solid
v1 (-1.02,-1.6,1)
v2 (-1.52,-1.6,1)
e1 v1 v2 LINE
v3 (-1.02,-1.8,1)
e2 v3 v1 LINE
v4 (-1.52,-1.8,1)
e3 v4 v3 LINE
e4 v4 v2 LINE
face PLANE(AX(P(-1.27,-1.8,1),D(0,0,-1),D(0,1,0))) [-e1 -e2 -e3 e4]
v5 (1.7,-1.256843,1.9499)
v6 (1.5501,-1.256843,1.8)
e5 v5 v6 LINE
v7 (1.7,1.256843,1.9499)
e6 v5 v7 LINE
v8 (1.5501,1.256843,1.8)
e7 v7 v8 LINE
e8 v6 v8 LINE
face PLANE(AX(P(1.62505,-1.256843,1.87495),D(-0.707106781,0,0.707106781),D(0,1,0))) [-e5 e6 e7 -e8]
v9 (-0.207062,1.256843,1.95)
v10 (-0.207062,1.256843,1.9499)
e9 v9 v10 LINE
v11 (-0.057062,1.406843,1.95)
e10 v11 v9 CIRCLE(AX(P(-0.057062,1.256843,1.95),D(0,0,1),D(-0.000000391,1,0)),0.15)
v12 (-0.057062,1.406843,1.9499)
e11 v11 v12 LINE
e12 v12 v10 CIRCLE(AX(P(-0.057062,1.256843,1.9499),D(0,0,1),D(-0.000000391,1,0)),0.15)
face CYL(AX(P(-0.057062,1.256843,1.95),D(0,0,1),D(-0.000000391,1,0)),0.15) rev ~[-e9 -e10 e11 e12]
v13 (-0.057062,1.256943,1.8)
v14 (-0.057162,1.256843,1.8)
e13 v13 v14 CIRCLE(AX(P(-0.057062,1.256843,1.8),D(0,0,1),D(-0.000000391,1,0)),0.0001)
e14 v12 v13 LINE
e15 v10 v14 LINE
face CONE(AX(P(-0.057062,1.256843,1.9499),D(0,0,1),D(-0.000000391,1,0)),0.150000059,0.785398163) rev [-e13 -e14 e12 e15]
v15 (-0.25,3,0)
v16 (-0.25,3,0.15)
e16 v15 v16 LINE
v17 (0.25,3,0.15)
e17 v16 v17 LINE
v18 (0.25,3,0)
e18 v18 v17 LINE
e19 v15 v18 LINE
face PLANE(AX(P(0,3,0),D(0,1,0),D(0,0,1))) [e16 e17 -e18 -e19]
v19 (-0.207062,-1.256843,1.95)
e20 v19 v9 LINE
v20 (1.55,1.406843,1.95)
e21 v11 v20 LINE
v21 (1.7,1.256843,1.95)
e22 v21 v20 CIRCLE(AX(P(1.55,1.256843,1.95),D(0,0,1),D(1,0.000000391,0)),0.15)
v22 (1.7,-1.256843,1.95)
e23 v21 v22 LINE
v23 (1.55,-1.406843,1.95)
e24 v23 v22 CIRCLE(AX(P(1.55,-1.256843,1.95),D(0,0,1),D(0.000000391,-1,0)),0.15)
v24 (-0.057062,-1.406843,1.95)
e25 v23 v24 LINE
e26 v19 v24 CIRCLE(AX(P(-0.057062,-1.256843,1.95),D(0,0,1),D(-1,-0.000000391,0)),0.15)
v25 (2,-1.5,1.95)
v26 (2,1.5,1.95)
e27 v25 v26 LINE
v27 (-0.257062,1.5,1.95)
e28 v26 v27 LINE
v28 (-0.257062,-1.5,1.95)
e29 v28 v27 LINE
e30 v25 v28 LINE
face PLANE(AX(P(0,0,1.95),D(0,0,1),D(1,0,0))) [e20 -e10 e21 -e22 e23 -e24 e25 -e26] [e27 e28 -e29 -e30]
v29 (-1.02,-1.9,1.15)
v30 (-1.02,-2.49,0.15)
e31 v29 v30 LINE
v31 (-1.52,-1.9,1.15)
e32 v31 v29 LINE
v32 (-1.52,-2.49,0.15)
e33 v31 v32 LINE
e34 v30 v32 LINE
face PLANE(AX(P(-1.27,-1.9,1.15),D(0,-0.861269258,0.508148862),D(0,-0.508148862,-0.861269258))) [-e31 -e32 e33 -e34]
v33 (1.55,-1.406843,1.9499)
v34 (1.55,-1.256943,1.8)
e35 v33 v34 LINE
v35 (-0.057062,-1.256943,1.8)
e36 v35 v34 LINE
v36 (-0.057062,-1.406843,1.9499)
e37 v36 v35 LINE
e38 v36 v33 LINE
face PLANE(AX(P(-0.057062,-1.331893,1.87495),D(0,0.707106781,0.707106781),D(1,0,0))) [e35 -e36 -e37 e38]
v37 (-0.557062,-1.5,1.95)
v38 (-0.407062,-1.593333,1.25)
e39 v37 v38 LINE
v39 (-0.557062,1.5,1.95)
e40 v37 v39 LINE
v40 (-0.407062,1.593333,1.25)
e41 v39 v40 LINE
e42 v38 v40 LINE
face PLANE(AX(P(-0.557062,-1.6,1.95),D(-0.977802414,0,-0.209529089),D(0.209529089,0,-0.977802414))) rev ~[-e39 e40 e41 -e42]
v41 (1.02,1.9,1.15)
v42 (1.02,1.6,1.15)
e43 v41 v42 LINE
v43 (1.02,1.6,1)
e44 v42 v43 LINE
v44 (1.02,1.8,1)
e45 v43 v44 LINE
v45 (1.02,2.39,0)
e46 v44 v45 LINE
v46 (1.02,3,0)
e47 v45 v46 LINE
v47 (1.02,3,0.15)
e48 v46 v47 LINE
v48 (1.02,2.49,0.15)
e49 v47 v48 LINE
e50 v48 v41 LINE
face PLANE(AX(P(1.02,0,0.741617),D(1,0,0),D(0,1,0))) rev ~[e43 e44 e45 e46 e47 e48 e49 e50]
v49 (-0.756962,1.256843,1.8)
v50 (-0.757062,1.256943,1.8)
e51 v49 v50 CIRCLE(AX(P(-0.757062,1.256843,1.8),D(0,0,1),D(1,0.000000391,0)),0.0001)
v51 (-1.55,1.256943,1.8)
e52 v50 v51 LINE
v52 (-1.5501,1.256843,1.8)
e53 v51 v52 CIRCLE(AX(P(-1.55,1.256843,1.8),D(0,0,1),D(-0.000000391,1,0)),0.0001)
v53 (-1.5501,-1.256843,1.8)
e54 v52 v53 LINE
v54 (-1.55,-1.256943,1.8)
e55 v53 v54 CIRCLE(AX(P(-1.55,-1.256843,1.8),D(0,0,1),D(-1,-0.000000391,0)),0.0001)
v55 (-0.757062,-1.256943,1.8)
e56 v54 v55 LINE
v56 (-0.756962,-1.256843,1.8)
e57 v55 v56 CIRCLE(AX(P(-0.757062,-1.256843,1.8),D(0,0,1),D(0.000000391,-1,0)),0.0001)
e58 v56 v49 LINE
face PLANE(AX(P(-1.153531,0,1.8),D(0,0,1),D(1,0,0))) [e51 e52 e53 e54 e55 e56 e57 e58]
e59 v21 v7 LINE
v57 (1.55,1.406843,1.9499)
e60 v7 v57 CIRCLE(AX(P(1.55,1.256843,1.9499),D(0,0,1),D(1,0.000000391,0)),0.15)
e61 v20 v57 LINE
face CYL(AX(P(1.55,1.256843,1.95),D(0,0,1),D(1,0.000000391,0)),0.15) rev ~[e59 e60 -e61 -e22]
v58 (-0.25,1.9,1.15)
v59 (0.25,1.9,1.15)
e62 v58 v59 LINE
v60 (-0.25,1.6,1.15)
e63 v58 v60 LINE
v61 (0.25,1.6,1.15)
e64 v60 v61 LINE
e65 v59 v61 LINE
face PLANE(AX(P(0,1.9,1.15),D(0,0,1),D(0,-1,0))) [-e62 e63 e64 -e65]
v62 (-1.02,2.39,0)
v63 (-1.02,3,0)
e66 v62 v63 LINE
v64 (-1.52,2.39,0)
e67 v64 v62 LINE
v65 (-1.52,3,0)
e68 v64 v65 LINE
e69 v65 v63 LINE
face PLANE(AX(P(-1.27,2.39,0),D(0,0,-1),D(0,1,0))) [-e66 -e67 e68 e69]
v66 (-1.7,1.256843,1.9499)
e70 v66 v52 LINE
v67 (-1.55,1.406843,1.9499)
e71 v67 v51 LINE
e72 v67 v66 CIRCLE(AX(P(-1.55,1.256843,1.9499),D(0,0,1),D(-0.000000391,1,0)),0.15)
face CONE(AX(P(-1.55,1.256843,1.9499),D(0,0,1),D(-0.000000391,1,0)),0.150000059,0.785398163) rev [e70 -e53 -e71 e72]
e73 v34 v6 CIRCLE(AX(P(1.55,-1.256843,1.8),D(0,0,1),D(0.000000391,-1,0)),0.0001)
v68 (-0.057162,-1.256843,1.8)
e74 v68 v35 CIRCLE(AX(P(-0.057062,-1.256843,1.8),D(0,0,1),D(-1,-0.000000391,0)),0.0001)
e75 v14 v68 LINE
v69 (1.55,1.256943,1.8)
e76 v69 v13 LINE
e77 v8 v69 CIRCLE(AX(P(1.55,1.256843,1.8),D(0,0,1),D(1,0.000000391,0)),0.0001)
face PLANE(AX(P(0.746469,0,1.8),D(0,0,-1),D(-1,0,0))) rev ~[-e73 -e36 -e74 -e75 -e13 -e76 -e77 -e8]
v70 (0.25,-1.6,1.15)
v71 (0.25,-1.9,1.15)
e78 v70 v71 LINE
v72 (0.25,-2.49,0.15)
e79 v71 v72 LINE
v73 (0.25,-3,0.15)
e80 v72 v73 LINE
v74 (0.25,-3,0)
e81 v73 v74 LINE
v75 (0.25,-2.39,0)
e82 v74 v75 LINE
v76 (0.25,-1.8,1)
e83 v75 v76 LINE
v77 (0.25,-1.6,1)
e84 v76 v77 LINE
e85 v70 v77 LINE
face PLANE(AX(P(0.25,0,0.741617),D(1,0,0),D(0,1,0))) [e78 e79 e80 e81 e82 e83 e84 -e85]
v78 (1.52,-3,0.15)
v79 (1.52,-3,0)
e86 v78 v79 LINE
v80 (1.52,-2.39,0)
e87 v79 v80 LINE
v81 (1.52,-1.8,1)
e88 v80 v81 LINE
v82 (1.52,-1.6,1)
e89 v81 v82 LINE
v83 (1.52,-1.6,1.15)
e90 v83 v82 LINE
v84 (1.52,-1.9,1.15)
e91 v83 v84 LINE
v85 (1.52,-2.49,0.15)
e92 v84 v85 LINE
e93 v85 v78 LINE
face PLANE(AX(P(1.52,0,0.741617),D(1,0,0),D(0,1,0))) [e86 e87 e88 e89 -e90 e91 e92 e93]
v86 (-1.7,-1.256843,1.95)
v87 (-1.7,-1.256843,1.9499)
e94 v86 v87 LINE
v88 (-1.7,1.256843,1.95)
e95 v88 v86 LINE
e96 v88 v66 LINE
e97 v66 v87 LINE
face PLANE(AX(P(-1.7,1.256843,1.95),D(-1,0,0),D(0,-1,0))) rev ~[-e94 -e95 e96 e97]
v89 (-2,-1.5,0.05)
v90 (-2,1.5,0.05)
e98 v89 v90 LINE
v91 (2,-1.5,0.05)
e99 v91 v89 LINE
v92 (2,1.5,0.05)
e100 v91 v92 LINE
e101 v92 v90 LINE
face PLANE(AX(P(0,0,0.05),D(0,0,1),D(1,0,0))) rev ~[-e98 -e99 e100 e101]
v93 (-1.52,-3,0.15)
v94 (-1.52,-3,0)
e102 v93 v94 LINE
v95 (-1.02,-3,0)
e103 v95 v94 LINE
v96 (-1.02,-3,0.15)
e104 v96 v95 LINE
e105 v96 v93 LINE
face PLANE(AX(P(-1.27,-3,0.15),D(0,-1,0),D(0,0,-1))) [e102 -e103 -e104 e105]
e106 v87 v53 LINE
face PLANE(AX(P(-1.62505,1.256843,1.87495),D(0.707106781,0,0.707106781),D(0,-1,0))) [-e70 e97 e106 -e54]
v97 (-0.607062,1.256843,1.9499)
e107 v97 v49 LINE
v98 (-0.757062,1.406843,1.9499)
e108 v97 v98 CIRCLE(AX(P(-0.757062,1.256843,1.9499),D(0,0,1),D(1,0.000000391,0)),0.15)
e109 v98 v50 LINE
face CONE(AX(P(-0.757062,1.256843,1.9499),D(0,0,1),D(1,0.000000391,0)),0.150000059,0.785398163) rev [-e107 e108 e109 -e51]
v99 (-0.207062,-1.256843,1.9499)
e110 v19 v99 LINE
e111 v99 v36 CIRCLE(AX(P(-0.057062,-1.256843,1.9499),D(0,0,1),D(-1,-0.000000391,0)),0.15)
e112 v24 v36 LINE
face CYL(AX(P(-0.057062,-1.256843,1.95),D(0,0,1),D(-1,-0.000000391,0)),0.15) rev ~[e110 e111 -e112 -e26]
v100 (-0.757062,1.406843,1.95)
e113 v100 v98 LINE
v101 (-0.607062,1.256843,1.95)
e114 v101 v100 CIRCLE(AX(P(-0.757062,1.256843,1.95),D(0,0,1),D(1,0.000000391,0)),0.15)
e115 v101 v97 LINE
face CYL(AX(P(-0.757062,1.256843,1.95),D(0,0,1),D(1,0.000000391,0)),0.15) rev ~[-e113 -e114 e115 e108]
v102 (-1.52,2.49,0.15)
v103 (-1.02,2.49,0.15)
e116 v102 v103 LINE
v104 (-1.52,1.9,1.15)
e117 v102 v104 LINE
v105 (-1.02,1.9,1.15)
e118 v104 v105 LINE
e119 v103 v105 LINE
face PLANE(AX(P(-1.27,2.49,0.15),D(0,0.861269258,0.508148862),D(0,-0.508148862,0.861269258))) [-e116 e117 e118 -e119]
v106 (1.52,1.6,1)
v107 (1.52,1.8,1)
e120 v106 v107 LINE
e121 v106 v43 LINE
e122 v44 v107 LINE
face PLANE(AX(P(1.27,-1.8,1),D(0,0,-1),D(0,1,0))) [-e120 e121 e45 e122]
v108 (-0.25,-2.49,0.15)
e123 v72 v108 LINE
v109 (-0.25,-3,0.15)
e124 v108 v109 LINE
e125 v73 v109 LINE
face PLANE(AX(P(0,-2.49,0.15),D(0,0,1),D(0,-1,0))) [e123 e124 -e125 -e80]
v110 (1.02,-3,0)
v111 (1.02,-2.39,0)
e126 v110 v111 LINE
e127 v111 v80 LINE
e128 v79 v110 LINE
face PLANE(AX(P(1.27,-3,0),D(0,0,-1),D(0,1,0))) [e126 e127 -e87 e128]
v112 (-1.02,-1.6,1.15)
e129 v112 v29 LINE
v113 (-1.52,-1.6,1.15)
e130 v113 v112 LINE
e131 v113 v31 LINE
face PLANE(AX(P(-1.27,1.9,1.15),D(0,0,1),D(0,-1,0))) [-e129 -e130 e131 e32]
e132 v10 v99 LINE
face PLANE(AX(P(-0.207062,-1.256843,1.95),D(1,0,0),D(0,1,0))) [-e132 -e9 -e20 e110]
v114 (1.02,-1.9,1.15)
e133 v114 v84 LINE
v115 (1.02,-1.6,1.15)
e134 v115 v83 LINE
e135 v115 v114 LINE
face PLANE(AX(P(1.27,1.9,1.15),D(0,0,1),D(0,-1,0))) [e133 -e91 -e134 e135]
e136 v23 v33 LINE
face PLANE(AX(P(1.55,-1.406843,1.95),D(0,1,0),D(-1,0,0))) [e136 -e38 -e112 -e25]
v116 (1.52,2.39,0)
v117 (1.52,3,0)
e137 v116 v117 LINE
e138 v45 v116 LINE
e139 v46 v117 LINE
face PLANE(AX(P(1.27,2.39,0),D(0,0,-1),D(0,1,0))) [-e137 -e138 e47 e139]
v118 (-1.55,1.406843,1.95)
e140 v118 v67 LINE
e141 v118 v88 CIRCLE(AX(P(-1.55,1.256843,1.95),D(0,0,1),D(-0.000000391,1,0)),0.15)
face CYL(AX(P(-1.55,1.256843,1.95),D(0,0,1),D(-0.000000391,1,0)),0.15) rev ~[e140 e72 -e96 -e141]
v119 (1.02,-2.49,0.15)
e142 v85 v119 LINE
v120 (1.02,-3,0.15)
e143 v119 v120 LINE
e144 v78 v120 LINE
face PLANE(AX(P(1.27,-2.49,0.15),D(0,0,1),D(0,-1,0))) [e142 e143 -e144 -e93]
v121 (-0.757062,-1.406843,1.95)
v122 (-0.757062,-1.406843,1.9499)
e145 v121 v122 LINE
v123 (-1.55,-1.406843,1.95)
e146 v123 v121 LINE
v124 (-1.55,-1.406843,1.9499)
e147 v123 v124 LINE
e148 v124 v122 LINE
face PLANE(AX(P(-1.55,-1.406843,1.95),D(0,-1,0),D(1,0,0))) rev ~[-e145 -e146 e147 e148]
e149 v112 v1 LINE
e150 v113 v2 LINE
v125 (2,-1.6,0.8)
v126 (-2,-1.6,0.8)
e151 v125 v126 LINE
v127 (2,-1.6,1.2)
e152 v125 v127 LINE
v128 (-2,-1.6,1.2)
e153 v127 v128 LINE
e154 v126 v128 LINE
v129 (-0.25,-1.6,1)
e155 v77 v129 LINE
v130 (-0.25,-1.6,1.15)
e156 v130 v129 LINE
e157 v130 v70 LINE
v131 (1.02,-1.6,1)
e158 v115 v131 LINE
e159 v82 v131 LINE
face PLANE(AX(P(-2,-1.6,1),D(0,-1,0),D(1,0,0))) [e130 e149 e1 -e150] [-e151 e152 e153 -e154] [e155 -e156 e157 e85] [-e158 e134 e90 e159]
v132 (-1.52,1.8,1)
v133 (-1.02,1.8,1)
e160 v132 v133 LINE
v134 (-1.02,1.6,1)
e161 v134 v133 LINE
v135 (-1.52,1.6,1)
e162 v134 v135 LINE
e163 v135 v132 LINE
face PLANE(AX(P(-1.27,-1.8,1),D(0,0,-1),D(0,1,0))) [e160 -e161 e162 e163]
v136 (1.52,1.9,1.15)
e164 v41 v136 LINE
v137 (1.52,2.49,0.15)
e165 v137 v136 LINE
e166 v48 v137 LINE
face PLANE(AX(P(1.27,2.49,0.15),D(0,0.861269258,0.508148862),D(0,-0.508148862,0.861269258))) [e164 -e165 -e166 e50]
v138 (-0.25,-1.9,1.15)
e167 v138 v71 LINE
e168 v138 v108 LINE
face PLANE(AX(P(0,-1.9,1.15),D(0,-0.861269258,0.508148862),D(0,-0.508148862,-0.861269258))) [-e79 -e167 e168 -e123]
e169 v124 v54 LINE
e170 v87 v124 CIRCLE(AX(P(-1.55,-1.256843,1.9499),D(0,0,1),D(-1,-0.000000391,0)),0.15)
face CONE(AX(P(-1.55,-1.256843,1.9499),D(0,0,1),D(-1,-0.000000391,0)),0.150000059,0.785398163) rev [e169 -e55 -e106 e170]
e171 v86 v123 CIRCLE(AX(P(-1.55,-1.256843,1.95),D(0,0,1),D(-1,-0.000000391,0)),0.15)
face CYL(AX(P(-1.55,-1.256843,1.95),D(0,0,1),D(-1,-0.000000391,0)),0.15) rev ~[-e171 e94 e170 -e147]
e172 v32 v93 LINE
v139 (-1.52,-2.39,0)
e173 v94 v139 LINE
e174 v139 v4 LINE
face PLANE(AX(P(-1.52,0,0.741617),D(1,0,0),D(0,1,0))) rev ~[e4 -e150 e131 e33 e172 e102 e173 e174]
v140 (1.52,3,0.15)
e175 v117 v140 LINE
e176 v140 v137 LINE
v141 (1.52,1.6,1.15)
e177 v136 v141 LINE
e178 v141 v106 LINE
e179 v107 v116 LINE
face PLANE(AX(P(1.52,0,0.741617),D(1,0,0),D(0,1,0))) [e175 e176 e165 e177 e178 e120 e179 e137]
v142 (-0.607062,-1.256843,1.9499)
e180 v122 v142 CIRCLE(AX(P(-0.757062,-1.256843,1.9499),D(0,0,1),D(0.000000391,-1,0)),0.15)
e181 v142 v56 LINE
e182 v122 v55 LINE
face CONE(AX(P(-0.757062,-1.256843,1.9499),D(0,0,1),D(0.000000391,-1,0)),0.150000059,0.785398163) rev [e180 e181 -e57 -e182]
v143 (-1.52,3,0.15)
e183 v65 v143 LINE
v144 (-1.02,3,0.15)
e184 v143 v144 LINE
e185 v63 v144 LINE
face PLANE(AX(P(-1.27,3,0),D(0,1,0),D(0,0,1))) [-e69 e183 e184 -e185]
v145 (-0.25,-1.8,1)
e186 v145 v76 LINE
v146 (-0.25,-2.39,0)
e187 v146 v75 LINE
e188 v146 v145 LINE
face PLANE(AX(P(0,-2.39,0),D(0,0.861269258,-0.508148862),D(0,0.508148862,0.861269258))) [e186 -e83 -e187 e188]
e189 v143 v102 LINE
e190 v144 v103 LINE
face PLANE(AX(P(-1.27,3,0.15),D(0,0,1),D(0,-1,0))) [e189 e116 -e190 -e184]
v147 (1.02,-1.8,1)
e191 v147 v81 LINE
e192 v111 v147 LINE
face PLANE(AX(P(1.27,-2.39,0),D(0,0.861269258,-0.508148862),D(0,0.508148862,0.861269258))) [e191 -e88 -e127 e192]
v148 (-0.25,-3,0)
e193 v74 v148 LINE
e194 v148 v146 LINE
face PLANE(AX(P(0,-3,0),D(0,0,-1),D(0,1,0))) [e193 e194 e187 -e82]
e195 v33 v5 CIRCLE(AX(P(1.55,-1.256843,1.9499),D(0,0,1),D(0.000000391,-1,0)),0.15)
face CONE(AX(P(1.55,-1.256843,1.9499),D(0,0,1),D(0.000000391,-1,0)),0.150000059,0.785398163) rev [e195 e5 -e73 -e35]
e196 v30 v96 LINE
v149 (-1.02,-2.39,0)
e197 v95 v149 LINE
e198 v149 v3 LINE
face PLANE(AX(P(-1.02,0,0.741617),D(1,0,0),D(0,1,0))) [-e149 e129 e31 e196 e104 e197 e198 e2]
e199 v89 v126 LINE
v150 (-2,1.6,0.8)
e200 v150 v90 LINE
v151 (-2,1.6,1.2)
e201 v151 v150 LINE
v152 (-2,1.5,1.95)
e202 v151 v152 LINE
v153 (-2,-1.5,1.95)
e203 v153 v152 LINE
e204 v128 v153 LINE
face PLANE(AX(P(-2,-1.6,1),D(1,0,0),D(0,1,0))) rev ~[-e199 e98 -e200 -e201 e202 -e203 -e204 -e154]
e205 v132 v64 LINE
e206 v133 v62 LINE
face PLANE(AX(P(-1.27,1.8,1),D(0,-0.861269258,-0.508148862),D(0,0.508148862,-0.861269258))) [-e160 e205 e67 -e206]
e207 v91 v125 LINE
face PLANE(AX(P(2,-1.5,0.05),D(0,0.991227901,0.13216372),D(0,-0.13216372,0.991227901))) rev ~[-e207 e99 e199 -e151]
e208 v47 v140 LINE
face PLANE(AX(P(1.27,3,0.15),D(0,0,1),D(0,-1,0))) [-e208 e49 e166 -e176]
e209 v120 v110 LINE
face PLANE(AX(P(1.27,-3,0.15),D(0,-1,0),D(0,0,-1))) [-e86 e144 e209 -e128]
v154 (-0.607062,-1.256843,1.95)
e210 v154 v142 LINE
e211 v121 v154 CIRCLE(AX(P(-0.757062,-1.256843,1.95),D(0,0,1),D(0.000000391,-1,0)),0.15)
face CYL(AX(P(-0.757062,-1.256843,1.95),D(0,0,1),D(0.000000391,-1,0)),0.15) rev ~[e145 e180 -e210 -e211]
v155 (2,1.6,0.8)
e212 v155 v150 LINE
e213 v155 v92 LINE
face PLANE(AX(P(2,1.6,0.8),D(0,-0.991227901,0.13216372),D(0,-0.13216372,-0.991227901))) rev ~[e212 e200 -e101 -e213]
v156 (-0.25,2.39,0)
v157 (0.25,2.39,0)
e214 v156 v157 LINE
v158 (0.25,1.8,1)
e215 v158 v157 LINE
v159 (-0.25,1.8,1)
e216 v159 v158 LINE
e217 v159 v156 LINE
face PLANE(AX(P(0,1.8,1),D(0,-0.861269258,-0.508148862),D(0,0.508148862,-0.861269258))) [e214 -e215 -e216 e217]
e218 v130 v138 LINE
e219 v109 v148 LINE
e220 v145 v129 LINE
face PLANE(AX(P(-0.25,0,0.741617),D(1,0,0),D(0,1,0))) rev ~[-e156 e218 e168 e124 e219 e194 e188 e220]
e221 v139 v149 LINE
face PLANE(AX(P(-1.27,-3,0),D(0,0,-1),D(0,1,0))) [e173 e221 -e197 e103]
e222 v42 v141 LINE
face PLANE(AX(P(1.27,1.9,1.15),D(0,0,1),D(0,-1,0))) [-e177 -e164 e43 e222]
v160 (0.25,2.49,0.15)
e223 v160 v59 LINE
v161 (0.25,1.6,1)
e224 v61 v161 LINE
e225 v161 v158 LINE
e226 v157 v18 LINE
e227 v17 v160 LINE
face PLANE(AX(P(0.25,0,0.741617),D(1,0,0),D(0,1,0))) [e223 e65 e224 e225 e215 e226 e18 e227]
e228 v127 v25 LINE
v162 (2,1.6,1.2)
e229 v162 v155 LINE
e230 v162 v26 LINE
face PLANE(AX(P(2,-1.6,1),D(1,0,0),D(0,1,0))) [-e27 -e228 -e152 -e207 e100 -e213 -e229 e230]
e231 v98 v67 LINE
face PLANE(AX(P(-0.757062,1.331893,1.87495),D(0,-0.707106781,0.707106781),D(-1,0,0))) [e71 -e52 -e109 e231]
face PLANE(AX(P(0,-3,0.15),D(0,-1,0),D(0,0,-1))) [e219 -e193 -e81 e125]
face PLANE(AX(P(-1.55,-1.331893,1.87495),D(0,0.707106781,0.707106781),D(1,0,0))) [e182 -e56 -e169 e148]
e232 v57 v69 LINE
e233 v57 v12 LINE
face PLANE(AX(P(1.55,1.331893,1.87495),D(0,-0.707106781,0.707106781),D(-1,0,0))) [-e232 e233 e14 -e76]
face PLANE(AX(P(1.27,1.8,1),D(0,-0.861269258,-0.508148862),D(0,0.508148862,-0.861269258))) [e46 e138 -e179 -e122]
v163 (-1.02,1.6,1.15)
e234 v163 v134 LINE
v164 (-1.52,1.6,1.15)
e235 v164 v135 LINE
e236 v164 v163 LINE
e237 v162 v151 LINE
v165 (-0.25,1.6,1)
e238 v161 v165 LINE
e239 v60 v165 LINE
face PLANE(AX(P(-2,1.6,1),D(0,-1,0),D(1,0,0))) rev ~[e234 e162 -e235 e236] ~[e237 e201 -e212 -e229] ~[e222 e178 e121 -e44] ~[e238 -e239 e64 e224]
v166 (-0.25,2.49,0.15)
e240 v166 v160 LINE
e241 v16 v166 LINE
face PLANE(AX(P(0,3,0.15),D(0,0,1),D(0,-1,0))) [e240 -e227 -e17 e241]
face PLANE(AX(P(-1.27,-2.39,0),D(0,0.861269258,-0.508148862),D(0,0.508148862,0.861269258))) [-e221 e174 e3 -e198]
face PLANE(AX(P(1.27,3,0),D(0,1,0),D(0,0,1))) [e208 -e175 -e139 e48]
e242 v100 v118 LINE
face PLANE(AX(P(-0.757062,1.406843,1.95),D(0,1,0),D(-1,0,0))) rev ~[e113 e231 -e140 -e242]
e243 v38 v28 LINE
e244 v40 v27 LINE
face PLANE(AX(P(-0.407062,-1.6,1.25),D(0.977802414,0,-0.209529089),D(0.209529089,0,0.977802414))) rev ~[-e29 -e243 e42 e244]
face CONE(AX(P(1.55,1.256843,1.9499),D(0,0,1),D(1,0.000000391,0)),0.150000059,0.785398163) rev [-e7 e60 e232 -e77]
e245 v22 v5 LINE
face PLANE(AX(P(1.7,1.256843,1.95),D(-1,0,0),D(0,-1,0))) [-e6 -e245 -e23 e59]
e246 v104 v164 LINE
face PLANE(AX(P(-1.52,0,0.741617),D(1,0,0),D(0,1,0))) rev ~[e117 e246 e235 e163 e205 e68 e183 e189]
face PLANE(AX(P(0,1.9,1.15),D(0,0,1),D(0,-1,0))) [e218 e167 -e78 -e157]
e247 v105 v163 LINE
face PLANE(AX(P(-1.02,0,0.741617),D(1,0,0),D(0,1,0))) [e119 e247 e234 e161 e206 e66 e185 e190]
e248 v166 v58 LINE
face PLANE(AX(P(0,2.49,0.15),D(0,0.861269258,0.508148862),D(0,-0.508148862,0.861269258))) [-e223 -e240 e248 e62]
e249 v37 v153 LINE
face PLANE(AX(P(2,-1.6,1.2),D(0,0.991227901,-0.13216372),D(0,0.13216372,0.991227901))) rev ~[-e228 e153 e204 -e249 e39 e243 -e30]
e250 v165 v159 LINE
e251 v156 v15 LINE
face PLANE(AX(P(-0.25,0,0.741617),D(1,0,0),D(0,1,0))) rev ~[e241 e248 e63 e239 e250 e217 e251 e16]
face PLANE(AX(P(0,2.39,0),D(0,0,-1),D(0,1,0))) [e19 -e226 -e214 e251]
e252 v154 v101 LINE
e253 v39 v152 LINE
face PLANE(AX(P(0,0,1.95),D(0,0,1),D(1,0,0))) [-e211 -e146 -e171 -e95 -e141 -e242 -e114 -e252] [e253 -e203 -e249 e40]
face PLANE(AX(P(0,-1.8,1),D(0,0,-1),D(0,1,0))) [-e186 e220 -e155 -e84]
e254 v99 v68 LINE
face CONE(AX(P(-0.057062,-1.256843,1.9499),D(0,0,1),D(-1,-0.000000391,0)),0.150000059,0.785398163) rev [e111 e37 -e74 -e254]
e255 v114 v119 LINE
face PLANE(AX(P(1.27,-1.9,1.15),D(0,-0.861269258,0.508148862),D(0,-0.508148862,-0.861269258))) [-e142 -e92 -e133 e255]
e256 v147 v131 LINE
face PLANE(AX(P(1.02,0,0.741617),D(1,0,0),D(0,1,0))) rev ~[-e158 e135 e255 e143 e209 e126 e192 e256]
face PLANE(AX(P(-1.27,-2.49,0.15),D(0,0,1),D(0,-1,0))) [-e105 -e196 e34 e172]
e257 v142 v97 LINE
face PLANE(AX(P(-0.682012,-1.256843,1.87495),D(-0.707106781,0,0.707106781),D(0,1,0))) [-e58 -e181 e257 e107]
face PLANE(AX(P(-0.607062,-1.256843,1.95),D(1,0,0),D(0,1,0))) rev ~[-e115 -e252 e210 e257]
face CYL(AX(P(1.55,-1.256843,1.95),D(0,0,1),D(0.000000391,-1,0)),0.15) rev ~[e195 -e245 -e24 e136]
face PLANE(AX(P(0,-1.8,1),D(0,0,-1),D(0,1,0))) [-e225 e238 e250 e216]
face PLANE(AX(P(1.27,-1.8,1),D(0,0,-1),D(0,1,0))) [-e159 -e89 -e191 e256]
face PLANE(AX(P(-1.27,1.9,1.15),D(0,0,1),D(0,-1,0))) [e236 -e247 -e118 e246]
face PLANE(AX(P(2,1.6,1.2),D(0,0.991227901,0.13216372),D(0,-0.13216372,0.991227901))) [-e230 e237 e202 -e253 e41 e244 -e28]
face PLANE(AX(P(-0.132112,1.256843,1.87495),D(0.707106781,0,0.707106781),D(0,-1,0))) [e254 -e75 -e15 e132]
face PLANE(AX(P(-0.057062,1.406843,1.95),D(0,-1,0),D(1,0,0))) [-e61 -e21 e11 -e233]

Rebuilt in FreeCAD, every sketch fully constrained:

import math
import FreeCAD as App
import Part
import Sketcher
from FreeCAD import Vector
Q = App.Units.Quantity


def edges_at(feature, points):
    """Names of the edges that pass closest to the given points."""
    edges = feature.Shape.Edges
    near = lambda p: min(range(len(edges)), key=lambda i: edges[i].distToShape(Part.Vertex(*p))[0])
    return sorted({f"Edge{near(p) + 1}" for p in points})

doc = App.newDocument("Part")
params = doc.addObject("Spreadsheet::Sheet", "Params")
for row, (alias, value) in enumerate([
    ("sketch1_width", "3.6 mm"),
    ("sketch1_width2", "3.8 mm"),
    ("sketch1_width3", "0.61 mm"),
    ("sketch1_height", "0.15 mm"),
    ("pad1_length", "0.5 mm"),
    ("sketch2_width", "3.6 mm"),
    ("sketch2_width2", "3.8 mm"),
    ("sketch2_width3", "0.61 mm"),
    ("sketch2_height", "0.15 mm"),
    ("pad2_length", "0.5 mm"),
    ("sketch3_width", "4 mm"),
    ("sketch3_height", "3.2 mm"),
    ("pad3_length", "1.9 mm"),
    ("sketch4_width", "0.3 mm"),
    ("sketch5_radius", "0.15 mm"),
    ("pocket2_length", "0.15 mm"),
    ("sketch6_width", "0.1 mm"),
    ("sketch6_height", "0.75 mm"),
    ("pocket3_length", "20 mm"),
    ("chamfer_size", "0.1499 mm"),
    ("sketch7_width", "3.6 mm"),
    ("sketch7_width2", "3.8 mm"),
    ("sketch7_width3", "0.61 mm"),
    ("sketch7_height", "0.15 mm"),
    ("pad4_length", "0.5 mm"),
], start=1):
    params.set(f"A{row}", alias)
    params.set(f"B{row}", "=" + value)
    params.setAlias(f"B{row}", alias)

body = doc.addObject("PartDesign::Body", "Body")

# Sketch on YZ plane
sketch1 = body.newObject("Sketcher::SketchObject", "Sketch")
sketch1.AttachmentSupport = (doc.getObject("YZ_Plane"), [""])
sketch1.MapMode = "FlatFace"
sketch1.addGeometry([
    Part.LineSegment(Vector(-3, 0, 0), Vector(-2.39, 0, 0)),  # 0
    Part.LineSegment(Vector(-2.39, 0, 0), Vector(-1.8, 1, 0)),  # 1
    Part.LineSegment(Vector(-1.8, 1, 0), Vector(1.8, 1, 0)),  # 2
    Part.LineSegment(Vector(1.8, 1, 0), Vector(2.39, 0, 0)),  # 3
    Part.LineSegment(Vector(2.39, 0, 0), Vector(3, 0, 0)),  # 4
    Part.LineSegment(Vector(3, 0, 0), Vector(3, 0.15, 0)),  # 5
    Part.LineSegment(Vector(3, 0.15, 0), Vector(2.49, 0.15, 0)),  # 6
    Part.LineSegment(Vector(2.49, 0.15, 0), Vector(1.9, 1.15, 0)),  # 7
    Part.LineSegment(Vector(1.9, 1.15, 0), Vector(-1.9, 1.15, 0)),  # 8
    Part.LineSegment(Vector(-1.9, 1.15, 0), Vector(-2.49, 0.15, 0)),  # 9
    Part.LineSegment(Vector(-2.49, 0.15, 0), Vector(-3, 0.15, 0)),  # 10
    Part.LineSegment(Vector(-3, 0.15, 0), Vector(-3, 0, 0)),  # 11
], False)
sketch1.addConstraint([
    Sketcher.Constraint("Coincident", 0, 2, 1, 1),
    Sketcher.Constraint("Coincident", 1, 2, 2, 1),
    Sketcher.Constraint("Coincident", 2, 2, 3, 1),
    Sketcher.Constraint("Coincident", 3, 2, 4, 1),
    Sketcher.Constraint("Coincident", 4, 2, 5, 1),
    Sketcher.Constraint("Coincident", 5, 2, 6, 1),
    Sketcher.Constraint("Coincident", 6, 2, 7, 1),
    Sketcher.Constraint("Coincident", 7, 2, 8, 1),
    Sketcher.Constraint("Coincident", 8, 2, 9, 1),
    Sketcher.Constraint("Coincident", 9, 2, 10, 1),
    Sketcher.Constraint("Coincident", 10, 2, 11, 1),
    Sketcher.Constraint("Coincident", 11, 2, 0, 1),
    Sketcher.Constraint("Horizontal", 0),
    Sketcher.Constraint("Horizontal", 2),
    Sketcher.Constraint("Horizontal", 4),
    Sketcher.Constraint("Vertical", 5),
    Sketcher.Constraint("Horizontal", 6),
    Sketcher.Constraint("Horizontal", 8),
    Sketcher.Constraint("Horizontal", 10),
    Sketcher.Constraint("Vertical", 11),
    Sketcher.Constraint("Symmetric", 0, 2, 3, 2, -1, 1),
    Sketcher.Constraint("Symmetric", 6, 2, 9, 2, -2),
    Sketcher.Constraint("Symmetric", 4, 2, 11, 2, -2),
    Sketcher.Constraint("Parallel", 3, 7),
    Sketcher.Constraint("Parallel", 1, 9),
    Sketcher.Constraint("Equal", 1, 3),
    Sketcher.Constraint("Equal", 3, 7),
    Sketcher.Constraint("DistanceX", 2, 1, 2, 2, Q("3.6 mm")),
    Sketcher.Constraint("DistanceX", 8, 2, 8, 1, Q("3.8 mm")),
    Sketcher.Constraint("DistanceY", -1, 1, 1, 2, Q("1 mm")),
    Sketcher.Constraint("DistanceX", -1, 1, 4, 2, Q("3 mm")),
    Sketcher.Constraint("DistanceX", 0, 1, 0, 2, Q("0.61 mm")),
    Sketcher.Constraint("DistanceY", 5, 1, 5, 2, Q("0.15 mm")),
])
sketch1.setExpression("Constraints[27]", "Params.sketch1_width")
sketch1.setExpression("Constraints[28]", "Params.sketch1_width2")
sketch1.setExpression("Constraints[31]", "Params.sketch1_width3")
sketch1.setExpression("Constraints[32]", "Params.sketch1_height")
pad1 = body.newObject("PartDesign::Pad", "Pad")
pad1.Profile = sketch1
pad1.setExpression("Length", "Params.pad1_length")
pad1.Midplane = True
body2 = doc.addObject("PartDesign::Body", "Body001")

# Sketch on YZ plane
sketch2 = body2.newObject("Sketcher::SketchObject", "Sketch001")
sketch2.AttachmentSupport = (doc.getObject("YZ_Plane001"), [""])
sketch2.MapMode = "FlatFace"
sketch2.AttachmentOffset = App.Placement(Vector(0, 0, 1.27), App.Rotation())
sketch2.addGeometry([
    Part.LineSegment(Vector(-3, 0, 0), Vector(-2.39, 0, 0)),  # 0
    Part.LineSegment(Vector(-2.39, 0, 0), Vector(-1.8, 1, 0)),  # 1
    Part.LineSegment(Vector(-1.8, 1, 0), Vector(1.8, 1, 0)),  # 2
    Part.LineSegment(Vector(1.8, 1, 0), Vector(2.39, 0, 0)),  # 3
    Part.LineSegment(Vector(2.39, 0, 0), Vector(3, 0, 0)),  # 4
    Part.LineSegment(Vector(3, 0, 0), Vector(3, 0.15, 0)),  # 5
    Part.LineSegment(Vector(3, 0.15, 0), Vector(2.49, 0.15, 0)),  # 6
    Part.LineSegment(Vector(2.49, 0.15, 0), Vector(1.9, 1.15, 0)),  # 7
    Part.LineSegment(Vector(1.9, 1.15, 0), Vector(-1.9, 1.15, 0)),  # 8
    Part.LineSegment(Vector(-1.9, 1.15, 0), Vector(-2.49, 0.15, 0)),  # 9
    Part.LineSegment(Vector(-2.49, 0.15, 0), Vector(-3, 0.15, 0)),  # 10
    Part.LineSegment(Vector(-3, 0.15, 0), Vector(-3, 0, 0)),  # 11
], False)
sketch2.addConstraint([
    Sketcher.Constraint("Coincident", 0, 2, 1, 1),
    Sketcher.Constraint("Coincident", 1, 2, 2, 1),
    Sketcher.Constraint("Coincident", 2, 2, 3, 1),
    Sketcher.Constraint("Coincident", 3, 2, 4, 1),
    Sketcher.Constraint("Coincident", 4, 2, 5, 1),
    Sketcher.Constraint("Coincident", 5, 2, 6, 1),
    Sketcher.Constraint("Coincident", 6, 2, 7, 1),
    Sketcher.Constraint("Coincident", 7, 2, 8, 1),
    Sketcher.Constraint("Coincident", 8, 2, 9, 1),
    Sketcher.Constraint("Coincident", 9, 2, 10, 1),
    Sketcher.Constraint("Coincident", 10, 2, 11, 1),
    Sketcher.Constraint("Coincident", 11, 2, 0, 1),
    Sketcher.Constraint("Horizontal", 0),
    Sketcher.Constraint("Horizontal", 2),
    Sketcher.Constraint("Horizontal", 4),
    Sketcher.Constraint("Vertical", 5),
    Sketcher.Constraint("Horizontal", 6),
    Sketcher.Constraint("Horizontal", 8),
    Sketcher.Constraint("Horizontal", 10),
    Sketcher.Constraint("Vertical", 11),
    Sketcher.Constraint("Symmetric", 0, 2, 3, 2, -1, 1),
    Sketcher.Constraint("Symmetric", 6, 2, 9, 2, -2),
    Sketcher.Constraint("Symmetric", 4, 2, 11, 2, -2),
    Sketcher.Constraint("Parallel", 3, 7),
    Sketcher.Constraint("Parallel", 1, 9),
    Sketcher.Constraint("Equal", 1, 3),
    Sketcher.Constraint("Equal", 3, 7),
    Sketcher.Constraint("DistanceX", 2, 1, 2, 2, Q("3.6 mm")),
    Sketcher.Constraint("DistanceX", 8, 2, 8, 1, Q("3.8 mm")),
    Sketcher.Constraint("DistanceY", -1, 1, 1, 2, Q("1 mm")),
    Sketcher.Constraint("DistanceX", -1, 1, 4, 2, Q("3 mm")),
    Sketcher.Constraint("DistanceX", 0, 1, 0, 2, Q("0.61 mm")),
    Sketcher.Constraint("DistanceY", 5, 1, 5, 2, Q("0.15 mm")),
])
sketch2.setExpression("Constraints[27]", "Params.sketch2_width")
sketch2.setExpression("Constraints[28]", "Params.sketch2_width2")
sketch2.setExpression("Constraints[31]", "Params.sketch2_width3")
sketch2.setExpression("Constraints[32]", "Params.sketch2_height")
pad2 = body2.newObject("PartDesign::Pad", "Pad001")
pad2.Profile = sketch2
pad2.setExpression("Length", "Params.pad2_length")
pad2.Midplane = True
body3 = doc.addObject("PartDesign::Body", "Body002")

# Sketch on XY plane
sketch3 = body3.newObject("Sketcher::SketchObject", "Sketch002")
sketch3.AttachmentSupport = (doc.getObject("XY_Plane002"), [""])
sketch3.MapMode = "FlatFace"
sketch3.AttachmentOffset = App.Placement(Vector(0, 0, 1), App.Rotation())
sketch3.addGeometry([
    Part.LineSegment(Vector(-2, 1.6, 0), Vector(-2, -1.6, 0)),
    Part.LineSegment(Vector(-2, -1.6, 0), Vector(2, -1.6, 0)),
    Part.LineSegment(Vector(2, -1.6, 0), Vector(2, 1.6, 0)),
    Part.LineSegment(Vector(2, 1.6, 0), Vector(-2, 1.6, 0)),
], False)
sketch3.addConstraint([
    Sketcher.Constraint("Coincident", 0, 2, 1, 1),
    Sketcher.Constraint("Coincident", 1, 2, 2, 1),
    Sketcher.Constraint("Coincident", 2, 2, 3, 1),
    Sketcher.Constraint("Coincident", 3, 2, 0, 1),
    Sketcher.Constraint("Vertical", 0),
    Sketcher.Constraint("Horizontal", 1),
    Sketcher.Constraint("Vertical", 2),
    Sketcher.Constraint("Horizontal", 3),
    Sketcher.Constraint("Symmetric", 0, 2, 2, 2, -1, 1),
    Sketcher.Constraint("DistanceX", 1, 1, 1, 2, Q("4 mm")),
    Sketcher.Constraint("DistanceY", 0, 2, 0, 1, Q("3.2 mm")),
])
sketch3.setExpression("Constraints[9]", "Params.sketch3_width")
sketch3.setExpression("Constraints[10]", "Params.sketch3_height")
pad3 = body3.newObject("PartDesign::Pad", "Pad002")
pad3.Profile = sketch3
pad3.setExpression("Length", "Params.pad3_length")
pad3.Midplane = True

# Sketch on XZ plane
sketch4 = body3.newObject("Sketcher::SketchObject", "Sketch003")
sketch4.AttachmentSupport = (doc.getObject("XZ_Plane002"), [""])
sketch4.MapMode = "FlatFace"
sketch4.AttachmentOffset = App.Placement(Vector(0, 0, 1.6), App.Rotation())
sketch4.addGeometry([
    Part.LineSegment(Vector(-0.56, 1.95, 0), Vector(-0.41, 1.25, 0)),
    Part.LineSegment(Vector(-0.41, 1.25, 0), Vector(-0.26, 1.95, 0)),
    Part.LineSegment(Vector(-0.26, 1.95, 0), Vector(-0.56, 1.95, 0)),
], False)
sketch4.addConstraint([
    Sketcher.Constraint("Coincident", 0, 2, 1, 1),
    Sketcher.Constraint("Coincident", 1, 2, 2, 1),
    Sketcher.Constraint("Coincident", 2, 2, 0, 1),
    Sketcher.Constraint("Horizontal", 2),
    Sketcher.Constraint("Equal", 0, 1),
    Sketcher.Constraint("DistanceX", 2, 2, 2, 1, Q("0.3 mm")),
    Sketcher.Constraint("DistanceY", 0, 2, 1, 2, Q("0.7 mm")),
    Sketcher.Constraint("DistanceY", -1, 1, 0, 2, Q("1.25 mm")),
    Sketcher.Constraint("DistanceX", 2, 2, -1, 1, Q("0.557062 mm")),
])
sketch4.setExpression("Constraints[5]", "Params.sketch4_width")
pocket1 = body3.newObject("PartDesign::Pocket", "Pocket")
pocket1.Profile = sketch4
pocket1.Type = "ThroughAll"

# Sketch on XY plane
sketch5 = body3.newObject("Sketcher::SketchObject", "Sketch004")
sketch5.AttachmentSupport = (doc.getObject("XY_Plane002"), [""])
sketch5.MapMode = "FlatFace"
sketch5.AttachmentOffset = App.Placement(Vector(0, 0, 1.95), App.Rotation())
sketch5.addGeometry([
    Part.LineSegment(Vector(-0.76, 1.41, 0), Vector(-1.55, 1.41, 0)),  # 0
    Part.ArcOfCircle(Part.Circle(Vector(-1.55, 1.26, 0), Vector(0, 0, 1), 0.15), math.radians(90), math.radians(180)),  # 1
    Part.LineSegment(Vector(-1.7, 1.26, 0), Vector(-1.7, -1.26, 0)),  # 2
    Part.ArcOfCircle(Part.Circle(Vector(-1.55, -1.26, 0), Vector(0, 0, 1), 0.15), math.radians(-180), math.radians(-90)),  # 3
    Part.LineSegment(Vector(-1.55, -1.41, 0), Vector(-0.76, -1.41, 0)),  # 4
    Part.ArcOfCircle(Part.Circle(Vector(-0.76, -1.26, 0), Vector(0, 0, 1), 0.15), math.radians(-90), math.radians(0)),  # 5
    Part.LineSegment(Vector(-0.61, -1.26, 0), Vector(-0.61, 1.26, 0)),  # 6
    Part.ArcOfCircle(Part.Circle(Vector(-0.76, 1.26, 0), Vector(0, 0, 1), 0.15), math.radians(0), math.radians(90)),  # 7
    Part.LineSegment(Vector(1.55, 1.41, 0), Vector(-0.06, 1.41, 0)),  # 8
    Part.ArcOfCircle(Part.Circle(Vector(-0.06, 1.26, 0), Vector(0, 0, 1), 0.15), math.radians(90), math.radians(180)),  # 9
    Part.LineSegment(Vector(-0.21, 1.26, 0), Vector(-0.21, -1.26, 0)),  # 10
    Part.ArcOfCircle(Part.Circle(Vector(-0.06, -1.26, 0), Vector(0, 0, 1), 0.15), math.radians(-180), math.radians(-90)),  # 11
    Part.LineSegment(Vector(-0.06, -1.41, 0), Vector(1.55, -1.41, 0)),  # 12
    Part.ArcOfCircle(Part.Circle(Vector(1.55, -1.26, 0), Vector(0, 0, 1), 0.15), math.radians(-90), math.radians(0)),  # 13
    Part.LineSegment(Vector(1.7, -1.26, 0), Vector(1.7, 1.26, 0)),  # 14
    Part.ArcOfCircle(Part.Circle(Vector(1.55, 1.26, 0), Vector(0, 0, 1), 0.15), math.radians(0), math.radians(90)),  # 15
], False)
sketch5.addConstraint([
    Sketcher.Constraint("Tangent", 0, 2, 1, 1),
    Sketcher.Constraint("Tangent", 1, 2, 2, 1),
    Sketcher.Constraint("Tangent", 2, 2, 3, 1),
    Sketcher.Constraint("Tangent", 3, 2, 4, 1),
    Sketcher.Constraint("Tangent", 4, 2, 5, 1),
    Sketcher.Constraint("Tangent", 5, 2, 6, 1),
    Sketcher.Constraint("Tangent", 6, 2, 7, 1),
    Sketcher.Constraint("Tangent", 7, 2, 0, 1),
    Sketcher.Constraint("Tangent", 8, 2, 9, 1),
    Sketcher.Constraint("Tangent", 9, 2, 10, 1),
    Sketcher.Constraint("Tangent", 10, 2, 11, 1),
    Sketcher.Constraint("Tangent", 11, 2, 12, 1),
    Sketcher.Constraint("Tangent", 12, 2, 13, 1),
    Sketcher.Constraint("Tangent", 13, 2, 14, 1),
    Sketcher.Constraint("Tangent", 14, 2, 15, 1),
    Sketcher.Constraint("Tangent", 15, 2, 8, 1),
    Sketcher.Constraint("Horizontal", 0),
    Sketcher.Constraint("Vertical", 2),
    Sketcher.Constraint("Horizontal", 4),
    Sketcher.Constraint("Vertical", 6),
    Sketcher.Constraint("Horizontal", 8),
    Sketcher.Constraint("Vertical", 10),
    Sketcher.Constraint("Horizontal", 12),
    Sketcher.Constraint("Vertical", 14),
    Sketcher.Constraint("Equal", 1, 3),
    Sketcher.Constraint("Equal", 3, 5),
    Sketcher.Constraint("Equal", 5, 7),
    Sketcher.Constraint("Equal", 7, 9),
    Sketcher.Constraint("Equal", 9, 11),
    Sketcher.Constraint("Equal", 11, 13),
    Sketcher.Constraint("Equal", 13, 15),
    Sketcher.Constraint("Symmetric", 1, 3, 13, 3, -1, 1),
    Sketcher.Constraint("Horizontal", 7, 3, 9, 3),
    Sketcher.Constraint("Horizontal", 5, 3, 11, 3),
    Sketcher.Constraint("Radius", 1, Q("0.15 mm")),
    Sketcher.Constraint("DistanceX", 1, 2, -1, 1, Q("1.7 mm")),
    Sketcher.Constraint("DistanceX", 7, 3, 9, 3, Q("0.7 mm")),
    Sketcher.Constraint("DistanceX", 0, 2, 0, 1, Q("0.792938 mm")),
    Sketcher.Constraint("DistanceY", 2, 2, 2, 1, Q("2.513686 mm")),
])
sketch5.setExpression("Constraints[34]", "Params.sketch5_radius")
pocket2 = body3.newObject("PartDesign::Pocket", "Pocket001")
pocket2.Profile = sketch5
pocket2.setExpression("Length", "Params.pocket2_length")

# Sketch on YZ plane
sketch6 = body3.newObject("Sketcher::SketchObject", "Sketch005")
sketch6.AttachmentSupport = (doc.getObject("YZ_Plane002"), [""])
sketch6.MapMode = "FlatFace"
sketch6.AttachmentOffset = App.Placement(Vector(0, 0, 2), App.Rotation())
sketch6.addGeometry([
    Part.LineSegment(Vector(-1.5, 1.95, 0), Vector(-1.6, 1.95, 0)),  # 0
    Part.LineSegment(Vector(-1.6, 1.95, 0), Vector(-1.6, 1.2, 0)),  # 1
    Part.LineSegment(Vector(-1.6, 1.2, 0), Vector(-1.5, 1.95, 0)),  # 2
    Part.LineSegment(Vector(-1.6, 0.05, 0), Vector(-1.5, 0.05, 0)),  # 3
    Part.LineSegment(Vector(-1.5, 0.05, 0), Vector(-1.6, 0.8, 0)),  # 4
    Part.LineSegment(Vector(-1.6, 0.8, 0), Vector(-1.6, 0.05, 0)),  # 5
    Part.LineSegment(Vector(1.6, 1.2, 0), Vector(1.6, 1.95, 0)),  # 6
    Part.LineSegment(Vector(1.6, 1.95, 0), Vector(1.5, 1.95, 0)),  # 7
    Part.LineSegment(Vector(1.5, 1.95, 0), Vector(1.6, 1.2, 0)),  # 8
    Part.LineSegment(Vector(1.6, 0.05, 0), Vector(1.6, 0.8, 0)),  # 9
    Part.LineSegment(Vector(1.6, 0.8, 0), Vector(1.5, 0.05, 0)),  # 10
    Part.LineSegment(Vector(1.5, 0.05, 0), Vector(1.6, 0.05, 0)),  # 11
], False)
sketch6.addConstraint([
    Sketcher.Constraint("Coincident", 0, 2, 1, 1),
    Sketcher.Constraint("Coincident", 1, 2, 2, 1),
    Sketcher.Constraint("Coincident", 2, 2, 0, 1),
    Sketcher.Constraint("Coincident", 3, 2, 4, 1),
    Sketcher.Constraint("Coincident", 4, 2, 5, 1),
    Sketcher.Constraint("Coincident", 5, 2, 3, 1),
    Sketcher.Constraint("Coincident", 6, 2, 7, 1),
    Sketcher.Constraint("Coincident", 7, 2, 8, 1),
    Sketcher.Constraint("Coincident", 8, 2, 6, 1),
    Sketcher.Constraint("Coincident", 9, 2, 10, 1),
    Sketcher.Constraint("Coincident", 10, 2, 11, 1),
    Sketcher.Constraint("Coincident", 11, 2, 9, 1),
    Sketcher.Constraint("Horizontal", 0),
    Sketcher.Constraint("Vertical", 1),
    Sketcher.Constraint("Horizontal", 3),
    Sketcher.Constraint("Vertical", 5),
    Sketcher.Constraint("Vertical", 6),
    Sketcher.Constraint("Horizontal", 7),
    Sketcher.Constraint("Vertical", 9),
    Sketcher.Constraint("Horizontal", 11),
    Sketcher.Constraint("Symmetric", 0, 2, 6, 2, -2),
    Sketcher.Constraint("Symmetric", 4, 2, 9, 2, -2),
    Sketcher.Constraint("Symmetric", 3, 2, 10, 2, -2),
    Sketcher.Constraint("Parallel", 4, 8),
    Sketcher.Constraint("Parallel", 2, 10),
    Sketcher.Constraint("Horizontal", 1, 2, 8, 2),
    Sketcher.Constraint("Vertical", 2, 2, 3, 2),
    Sketcher.Constraint("Vertical", 1, 2, 4, 2),
    Sketcher.Constraint("DistanceX", 0, 2, 0, 1, Q("0.1 mm")),
    Sketcher.Constraint("DistanceX", 2, 2, 7, 2, Q("3 mm")),
    Sketcher.Constraint("DistanceY", 1, 2, 1, 1, Q("0.75 mm")),
    Sketcher.Constraint("DistanceY", -1, 1, 1, 2, Q("1.2 mm")),
    Sketcher.Constraint("DistanceY", -1, 1, 4, 2, Q("0.8 mm")),
])
sketch6.setExpression("Constraints[28]", "Params.sketch6_width")
sketch6.setExpression("Constraints[30]", "Params.sketch6_height")
pocket3 = body3.newObject("PartDesign::Pocket", "Pocket002")
pocket3.Profile = sketch6
pocket3.setExpression("Length", "Params.pocket3_length")
doc.recompute()

chamfer = body3.newObject("PartDesign::Chamfer", "Chamfer")
chamfer.Base = (pocket3, edges_at(pocket3, [
    (-1.7, 0, 1.8),
    (-1.656, 1.363, 1.8),
    (-1.154, 1.407, 1.8),
    (-0.163, 1.363, 1.8),
    (0.746, 1.407, 1.8),
    (-0.207, 0, 1.8),
    (-1.656, -1.363, 1.8),
    (-1.154, -1.407, 1.8),
    (-0.651, -1.363, 1.8),
    (-0.163, -1.363, 1.8),
    (0.746, -1.407, 1.8),
    (1.656, -1.363, 1.8),
    (1.656, 1.363, 1.8),
    (1.7, 0, 1.8),
    (-0.651, 1.363, 1.8),
    (-0.607, 0, 1.8),
]))
chamfer.setExpression("Size", "Params.chamfer_size")
body4 = doc.addObject("PartDesign::Body", "Body003")
body4.AllowCompound = True

# Sketch on YZ plane
sketch7 = body4.newObject("Sketcher::SketchObject", "Sketch006")
sketch7.AttachmentSupport = (doc.getObject("YZ_Plane003"), [""])
sketch7.MapMode = "FlatFace"
sketch7.AttachmentOffset = App.Placement(Vector(0, 0, -1.27), App.Rotation())
sketch7.addGeometry([
    Part.LineSegment(Vector(-3, 0, 0), Vector(-2.39, 0, 0)),  # 0
    Part.LineSegment(Vector(-2.39, 0, 0), Vector(-1.8, 1, 0)),  # 1
    Part.LineSegment(Vector(-1.8, 1, 0), Vector(1.8, 1, 0)),  # 2
    Part.LineSegment(Vector(1.8, 1, 0), Vector(2.39, 0, 0)),  # 3
    Part.LineSegment(Vector(2.39, 0, 0), Vector(3, 0, 0)),  # 4
    Part.LineSegment(Vector(3, 0, 0), Vector(3, 0.15, 0)),  # 5
    Part.LineSegment(Vector(3, 0.15, 0), Vector(2.49, 0.15, 0)),  # 6
    Part.LineSegment(Vector(2.49, 0.15, 0), Vector(1.9, 1.15, 0)),  # 7
    Part.LineSegment(Vector(1.9, 1.15, 0), Vector(-1.9, 1.15, 0)),  # 8
    Part.LineSegment(Vector(-1.9, 1.15, 0), Vector(-2.49, 0.15, 0)),  # 9
    Part.LineSegment(Vector(-2.49, 0.15, 0), Vector(-3, 0.15, 0)),  # 10
    Part.LineSegment(Vector(-3, 0.15, 0), Vector(-3, 0, 0)),  # 11
], False)
sketch7.addConstraint([
    Sketcher.Constraint("Coincident", 0, 2, 1, 1),
    Sketcher.Constraint("Coincident", 1, 2, 2, 1),
    Sketcher.Constraint("Coincident", 2, 2, 3, 1),
    Sketcher.Constraint("Coincident", 3, 2, 4, 1),
    Sketcher.Constraint("Coincident", 4, 2, 5, 1),
    Sketcher.Constraint("Coincident", 5, 2, 6, 1),
    Sketcher.Constraint("Coincident", 6, 2, 7, 1),
    Sketcher.Constraint("Coincident", 7, 2, 8, 1),
    Sketcher.Constraint("Coincident", 8, 2, 9, 1),
    Sketcher.Constraint("Coincident", 9, 2, 10, 1),
    Sketcher.Constraint("Coincident", 10, 2, 11, 1),
    Sketcher.Constraint("Coincident", 11, 2, 0, 1),
    Sketcher.Constraint("Horizontal", 0),
    Sketcher.Constraint("Horizontal", 2),
    Sketcher.Constraint("Horizontal", 4),
    Sketcher.Constraint("Vertical", 5),
    Sketcher.Constraint("Horizontal", 6),
    Sketcher.Constraint("Horizontal", 8),
    Sketcher.Constraint("Horizontal", 10),
    Sketcher.Constraint("Vertical", 11),
    Sketcher.Constraint("Symmetric", 0, 2, 3, 2, -1, 1),
    Sketcher.Constraint("Symmetric", 6, 2, 9, 2, -2),
    Sketcher.Constraint("Symmetric", 4, 2, 11, 2, -2),
    Sketcher.Constraint("Parallel", 3, 7),
    Sketcher.Constraint("Parallel", 1, 9),
    Sketcher.Constraint("Equal", 1, 3),
    Sketcher.Constraint("Equal", 3, 7),
    Sketcher.Constraint("DistanceX", 2, 1, 2, 2, Q("3.6 mm")),
    Sketcher.Constraint("DistanceX", 8, 2, 8, 1, Q("3.8 mm")),
    Sketcher.Constraint("DistanceY", -1, 1, 1, 2, Q("1 mm")),
    Sketcher.Constraint("DistanceX", -1, 1, 4, 2, Q("3 mm")),
    Sketcher.Constraint("DistanceX", 0, 1, 0, 2, Q("0.61 mm")),
    Sketcher.Constraint("DistanceY", 5, 1, 5, 2, Q("0.15 mm")),
])
sketch7.setExpression("Constraints[27]", "Params.sketch7_width")
sketch7.setExpression("Constraints[28]", "Params.sketch7_width2")
sketch7.setExpression("Constraints[31]", "Params.sketch7_width3")
sketch7.setExpression("Constraints[32]", "Params.sketch7_height")
pad4 = body4.newObject("PartDesign::Pad", "Pad003")
pad4.Profile = sketch7
pad4.setExpression("Length", "Params.pad4_length")
pad4.Midplane = True
doc.recompute()

boolean = body4.newObject("PartDesign::Boolean", "Boolean")
boolean.Type = "Fuse"
boolean.addObjects([body])
doc.recompute()

boolean2 = body4.newObject("PartDesign::Boolean", "Boolean001")
boolean2.Type = "Fuse"
boolean2.addObjects([body2])
doc.recompute()

boolean3 = body4.newObject("PartDesign::Boolean", "Boolean002")
boolean3.Type = "Fuse"
boolean3.addObjects([body3])

doc.recompute()
